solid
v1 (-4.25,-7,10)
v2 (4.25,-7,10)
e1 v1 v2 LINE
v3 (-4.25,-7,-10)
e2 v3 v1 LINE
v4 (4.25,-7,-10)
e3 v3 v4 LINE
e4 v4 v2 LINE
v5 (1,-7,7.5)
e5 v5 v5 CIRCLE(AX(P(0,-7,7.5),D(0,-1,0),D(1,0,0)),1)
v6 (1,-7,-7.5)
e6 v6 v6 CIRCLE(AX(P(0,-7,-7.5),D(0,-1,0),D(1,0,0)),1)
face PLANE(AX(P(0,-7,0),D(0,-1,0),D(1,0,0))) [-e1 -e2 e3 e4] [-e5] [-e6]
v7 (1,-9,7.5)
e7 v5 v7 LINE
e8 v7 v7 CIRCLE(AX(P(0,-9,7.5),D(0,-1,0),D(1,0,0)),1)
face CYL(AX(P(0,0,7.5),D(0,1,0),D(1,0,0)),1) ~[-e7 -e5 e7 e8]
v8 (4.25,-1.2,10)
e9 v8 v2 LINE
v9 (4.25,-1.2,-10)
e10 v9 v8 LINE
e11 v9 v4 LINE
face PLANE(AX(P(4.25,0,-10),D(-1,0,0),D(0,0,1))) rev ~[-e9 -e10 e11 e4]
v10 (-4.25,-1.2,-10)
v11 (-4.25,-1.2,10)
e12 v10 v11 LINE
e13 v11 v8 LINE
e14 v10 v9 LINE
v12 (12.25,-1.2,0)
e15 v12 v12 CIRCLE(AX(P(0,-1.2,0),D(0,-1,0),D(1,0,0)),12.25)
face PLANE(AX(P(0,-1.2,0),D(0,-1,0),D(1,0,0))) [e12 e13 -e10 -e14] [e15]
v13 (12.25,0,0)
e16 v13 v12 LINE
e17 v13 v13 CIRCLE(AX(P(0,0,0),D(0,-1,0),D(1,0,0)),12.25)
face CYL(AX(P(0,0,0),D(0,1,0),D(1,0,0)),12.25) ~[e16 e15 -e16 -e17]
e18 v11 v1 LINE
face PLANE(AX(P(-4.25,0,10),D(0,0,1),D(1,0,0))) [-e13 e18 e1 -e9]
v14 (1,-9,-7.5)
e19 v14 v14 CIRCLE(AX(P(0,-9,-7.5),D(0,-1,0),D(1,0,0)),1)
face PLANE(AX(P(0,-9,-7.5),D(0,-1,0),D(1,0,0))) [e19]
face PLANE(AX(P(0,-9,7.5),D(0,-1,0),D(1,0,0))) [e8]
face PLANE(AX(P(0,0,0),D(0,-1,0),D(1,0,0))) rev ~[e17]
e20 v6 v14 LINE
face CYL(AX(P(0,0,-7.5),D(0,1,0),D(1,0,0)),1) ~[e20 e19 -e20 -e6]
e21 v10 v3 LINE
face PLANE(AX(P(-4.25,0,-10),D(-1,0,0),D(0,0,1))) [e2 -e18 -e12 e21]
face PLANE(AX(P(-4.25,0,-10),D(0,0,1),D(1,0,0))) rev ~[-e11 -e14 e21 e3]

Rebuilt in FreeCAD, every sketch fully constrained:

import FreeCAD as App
import Part
import Sketcher

V = App.Vector
Q = App.Units.Quantity

doc = App.newDocument("Part")
params = doc.addObject("Spreadsheet::Sheet", "Params")
for row, (alias, value) in enumerate([
    ("sketch1_diameter", "24.5 mm"),
    ("sketch1_height", "20 mm"),
    ("sketch1_width", "8.5 mm"),
    ("pad1_length", "1.2 mm"),
    ("sketch2_diameter", "2 mm"),
    ("sketch2_height", "20 mm"),
    ("sketch2_width", "8.5 mm"),
    ("pad2_length", "7 mm"),
    ("sketch3_diameter", "2 mm"),
    ("pad3_length", "9 mm"),
], start=1):
    params.set(f"A{row}", alias)
    params.set(f"B{row}", "=" + value)
    params.setAlias(f"B{row}", alias)

body = doc.addObject("PartDesign::Body", "Body")

sketch1 = body.newObject("Sketcher::SketchObject", "Sketch")
sketch1.AttachmentSupport = (doc.getObject("XZ_Plane"), [""])
sketch1.MapMode = "FlatFace"
sketch1.addGeometry([
    Part.Circle(V(0, 0, 0), V(0, 0, 1), 12.25),
    Part.LineSegment(V(4.25, -10, 0), V(-4.25, -10, 0)),
    Part.LineSegment(V(-4.25, -10, 0), V(-4.25, 10, 0)),
    Part.LineSegment(V(-4.25, 10, 0), V(4.25, 10, 0)),
    Part.LineSegment(V(4.25, 10, 0), V(4.25, -10, 0)),
], False)
sketch1.addConstraint([
    Sketcher.Constraint("Coincident", 1, 2, 2, 1),
    Sketcher.Constraint("Coincident", 2, 2, 3, 1),
    Sketcher.Constraint("Coincident", 3, 2, 4, 1),
    Sketcher.Constraint("Coincident", 4, 2, 1, 1),
    Sketcher.Constraint("Horizontal", 1),
    Sketcher.Constraint("Vertical", 2),
    Sketcher.Constraint("Horizontal", 3),
    Sketcher.Constraint("Vertical", 4),
    Sketcher.Constraint("Coincident", 0, 3, -1, 1),
    Sketcher.Constraint("Symmetric", 1, 2, 3, 2, -1, 1),
    Sketcher.Constraint("Diameter", 0, Q("24.5 mm")),
    Sketcher.Constraint("DistanceY", 2, 1, 2, 2, Q("20 mm")),
    Sketcher.Constraint("DistanceX", 1, 2, 1, 1, Q("8.5 mm")),
])
sketch1.setExpression("Constraints[10]", "Params.sketch1_diameter")
sketch1.setExpression("Constraints[11]", "Params.sketch1_height")
sketch1.setExpression("Constraints[12]", "Params.sketch1_width")
pad1 = body.newObject("PartDesign::Pad", "Pad")
pad1.Profile = sketch1
pad1.setExpression("Length", "Params.pad1_length")

sketch2 = body.newObject("Sketcher::SketchObject", "Sketch001")
sketch2.AttachmentSupport = (doc.getObject("XZ_Plane"), [""])
sketch2.MapMode = "FlatFace"
sketch2.addGeometry([
    Part.LineSegment(V(-4.25, 10, 0), V(-4.25, -10, 0)),
    Part.LineSegment(V(-4.25, -10, 0), V(4.25, -10, 0)),
    Part.LineSegment(V(4.25, -10, 0), V(4.25, 10, 0)),
    Part.LineSegment(V(4.25, 10, 0), V(-4.25, 10, 0)),
    Part.Circle(V(0, -7.5, 0), V(0, 0, 1), 1),
    Part.Circle(V(0, 7.5, 0), V(0, 0, 1), 1),
], False)
sketch2.addConstraint([
    Sketcher.Constraint("Coincident", 0, 2, 1, 1),
    Sketcher.Constraint("Coincident", 1, 2, 2, 1),
    Sketcher.Constraint("Coincident", 2, 2, 3, 1),
    Sketcher.Constraint("Coincident", 3, 2, 0, 1),
    Sketcher.Constraint("Vertical", 0),
    Sketcher.Constraint("Horizontal", 1),
    Sketcher.Constraint("Vertical", 2),
    Sketcher.Constraint("Horizontal", 3),
    Sketcher.Constraint("Equal", 4, 5),
    Sketcher.Constraint("Symmetric", 4, 3, 5, 3, -1, 1),
    Sketcher.Constraint("Symmetric", 0, 2, 2, 2, -1, 1),
    Sketcher.Constraint("PointOnObject", 4, 3, -2),
    Sketcher.Constraint("Diameter", 4, Q("2 mm")),
    Sketcher.Constraint("DistanceY", 0, 2, 0, 1, Q("20 mm")),
    Sketcher.Constraint("DistanceX", 1, 1, 1, 2, Q("8.5 mm")),
    Sketcher.Constraint("DistanceY", 4, 3, 5, 3, Q("15 mm")),
])
sketch2.setExpression("Constraints[12]", "Params.sketch2_diameter")
sketch2.setExpression("Constraints[13]", "Params.sketch2_height")
sketch2.setExpression("Constraints[14]", "Params.sketch2_width")
pad2 = body.newObject("PartDesign::Pad", "Pad001")
pad2.Profile = sketch2
pad2.setExpression("Length", "Params.pad2_length")

sketch3 = body.newObject("Sketcher::SketchObject", "Sketch002")
sketch3.AttachmentSupport = (doc.getObject("XZ_Plane"), [""])
sketch3.MapMode = "FlatFace"
sketch3.addGeometry([
    Part.Circle(V(0, 7.5, 0), V(0, 0, 1), 1),
    Part.Circle(V(0, -7.5, 0), V(0, 0, 1), 1),
], False)
sketch3.addConstraint([
    Sketcher.Constraint("Equal", 0, 1),
    Sketcher.Constraint("Symmetric", 0, 3, 1, 3, -1, 1),
    Sketcher.Constraint("PointOnObject", 0, 3, -2),
    Sketcher.Constraint("Diameter", 0, Q("2 mm")),
    Sketcher.Constraint("DistanceY", 1, 3, 0, 3, Q("15 mm")),
])
sketch3.setExpression("Constraints[3]", "Params.sketch3_diameter")
pad3 = body.newObject("PartDesign::Pad", "Pad002")
pad3.Profile = sketch3
pad3.setExpression("Length", "Params.pad3_length")

doc.recompute()
